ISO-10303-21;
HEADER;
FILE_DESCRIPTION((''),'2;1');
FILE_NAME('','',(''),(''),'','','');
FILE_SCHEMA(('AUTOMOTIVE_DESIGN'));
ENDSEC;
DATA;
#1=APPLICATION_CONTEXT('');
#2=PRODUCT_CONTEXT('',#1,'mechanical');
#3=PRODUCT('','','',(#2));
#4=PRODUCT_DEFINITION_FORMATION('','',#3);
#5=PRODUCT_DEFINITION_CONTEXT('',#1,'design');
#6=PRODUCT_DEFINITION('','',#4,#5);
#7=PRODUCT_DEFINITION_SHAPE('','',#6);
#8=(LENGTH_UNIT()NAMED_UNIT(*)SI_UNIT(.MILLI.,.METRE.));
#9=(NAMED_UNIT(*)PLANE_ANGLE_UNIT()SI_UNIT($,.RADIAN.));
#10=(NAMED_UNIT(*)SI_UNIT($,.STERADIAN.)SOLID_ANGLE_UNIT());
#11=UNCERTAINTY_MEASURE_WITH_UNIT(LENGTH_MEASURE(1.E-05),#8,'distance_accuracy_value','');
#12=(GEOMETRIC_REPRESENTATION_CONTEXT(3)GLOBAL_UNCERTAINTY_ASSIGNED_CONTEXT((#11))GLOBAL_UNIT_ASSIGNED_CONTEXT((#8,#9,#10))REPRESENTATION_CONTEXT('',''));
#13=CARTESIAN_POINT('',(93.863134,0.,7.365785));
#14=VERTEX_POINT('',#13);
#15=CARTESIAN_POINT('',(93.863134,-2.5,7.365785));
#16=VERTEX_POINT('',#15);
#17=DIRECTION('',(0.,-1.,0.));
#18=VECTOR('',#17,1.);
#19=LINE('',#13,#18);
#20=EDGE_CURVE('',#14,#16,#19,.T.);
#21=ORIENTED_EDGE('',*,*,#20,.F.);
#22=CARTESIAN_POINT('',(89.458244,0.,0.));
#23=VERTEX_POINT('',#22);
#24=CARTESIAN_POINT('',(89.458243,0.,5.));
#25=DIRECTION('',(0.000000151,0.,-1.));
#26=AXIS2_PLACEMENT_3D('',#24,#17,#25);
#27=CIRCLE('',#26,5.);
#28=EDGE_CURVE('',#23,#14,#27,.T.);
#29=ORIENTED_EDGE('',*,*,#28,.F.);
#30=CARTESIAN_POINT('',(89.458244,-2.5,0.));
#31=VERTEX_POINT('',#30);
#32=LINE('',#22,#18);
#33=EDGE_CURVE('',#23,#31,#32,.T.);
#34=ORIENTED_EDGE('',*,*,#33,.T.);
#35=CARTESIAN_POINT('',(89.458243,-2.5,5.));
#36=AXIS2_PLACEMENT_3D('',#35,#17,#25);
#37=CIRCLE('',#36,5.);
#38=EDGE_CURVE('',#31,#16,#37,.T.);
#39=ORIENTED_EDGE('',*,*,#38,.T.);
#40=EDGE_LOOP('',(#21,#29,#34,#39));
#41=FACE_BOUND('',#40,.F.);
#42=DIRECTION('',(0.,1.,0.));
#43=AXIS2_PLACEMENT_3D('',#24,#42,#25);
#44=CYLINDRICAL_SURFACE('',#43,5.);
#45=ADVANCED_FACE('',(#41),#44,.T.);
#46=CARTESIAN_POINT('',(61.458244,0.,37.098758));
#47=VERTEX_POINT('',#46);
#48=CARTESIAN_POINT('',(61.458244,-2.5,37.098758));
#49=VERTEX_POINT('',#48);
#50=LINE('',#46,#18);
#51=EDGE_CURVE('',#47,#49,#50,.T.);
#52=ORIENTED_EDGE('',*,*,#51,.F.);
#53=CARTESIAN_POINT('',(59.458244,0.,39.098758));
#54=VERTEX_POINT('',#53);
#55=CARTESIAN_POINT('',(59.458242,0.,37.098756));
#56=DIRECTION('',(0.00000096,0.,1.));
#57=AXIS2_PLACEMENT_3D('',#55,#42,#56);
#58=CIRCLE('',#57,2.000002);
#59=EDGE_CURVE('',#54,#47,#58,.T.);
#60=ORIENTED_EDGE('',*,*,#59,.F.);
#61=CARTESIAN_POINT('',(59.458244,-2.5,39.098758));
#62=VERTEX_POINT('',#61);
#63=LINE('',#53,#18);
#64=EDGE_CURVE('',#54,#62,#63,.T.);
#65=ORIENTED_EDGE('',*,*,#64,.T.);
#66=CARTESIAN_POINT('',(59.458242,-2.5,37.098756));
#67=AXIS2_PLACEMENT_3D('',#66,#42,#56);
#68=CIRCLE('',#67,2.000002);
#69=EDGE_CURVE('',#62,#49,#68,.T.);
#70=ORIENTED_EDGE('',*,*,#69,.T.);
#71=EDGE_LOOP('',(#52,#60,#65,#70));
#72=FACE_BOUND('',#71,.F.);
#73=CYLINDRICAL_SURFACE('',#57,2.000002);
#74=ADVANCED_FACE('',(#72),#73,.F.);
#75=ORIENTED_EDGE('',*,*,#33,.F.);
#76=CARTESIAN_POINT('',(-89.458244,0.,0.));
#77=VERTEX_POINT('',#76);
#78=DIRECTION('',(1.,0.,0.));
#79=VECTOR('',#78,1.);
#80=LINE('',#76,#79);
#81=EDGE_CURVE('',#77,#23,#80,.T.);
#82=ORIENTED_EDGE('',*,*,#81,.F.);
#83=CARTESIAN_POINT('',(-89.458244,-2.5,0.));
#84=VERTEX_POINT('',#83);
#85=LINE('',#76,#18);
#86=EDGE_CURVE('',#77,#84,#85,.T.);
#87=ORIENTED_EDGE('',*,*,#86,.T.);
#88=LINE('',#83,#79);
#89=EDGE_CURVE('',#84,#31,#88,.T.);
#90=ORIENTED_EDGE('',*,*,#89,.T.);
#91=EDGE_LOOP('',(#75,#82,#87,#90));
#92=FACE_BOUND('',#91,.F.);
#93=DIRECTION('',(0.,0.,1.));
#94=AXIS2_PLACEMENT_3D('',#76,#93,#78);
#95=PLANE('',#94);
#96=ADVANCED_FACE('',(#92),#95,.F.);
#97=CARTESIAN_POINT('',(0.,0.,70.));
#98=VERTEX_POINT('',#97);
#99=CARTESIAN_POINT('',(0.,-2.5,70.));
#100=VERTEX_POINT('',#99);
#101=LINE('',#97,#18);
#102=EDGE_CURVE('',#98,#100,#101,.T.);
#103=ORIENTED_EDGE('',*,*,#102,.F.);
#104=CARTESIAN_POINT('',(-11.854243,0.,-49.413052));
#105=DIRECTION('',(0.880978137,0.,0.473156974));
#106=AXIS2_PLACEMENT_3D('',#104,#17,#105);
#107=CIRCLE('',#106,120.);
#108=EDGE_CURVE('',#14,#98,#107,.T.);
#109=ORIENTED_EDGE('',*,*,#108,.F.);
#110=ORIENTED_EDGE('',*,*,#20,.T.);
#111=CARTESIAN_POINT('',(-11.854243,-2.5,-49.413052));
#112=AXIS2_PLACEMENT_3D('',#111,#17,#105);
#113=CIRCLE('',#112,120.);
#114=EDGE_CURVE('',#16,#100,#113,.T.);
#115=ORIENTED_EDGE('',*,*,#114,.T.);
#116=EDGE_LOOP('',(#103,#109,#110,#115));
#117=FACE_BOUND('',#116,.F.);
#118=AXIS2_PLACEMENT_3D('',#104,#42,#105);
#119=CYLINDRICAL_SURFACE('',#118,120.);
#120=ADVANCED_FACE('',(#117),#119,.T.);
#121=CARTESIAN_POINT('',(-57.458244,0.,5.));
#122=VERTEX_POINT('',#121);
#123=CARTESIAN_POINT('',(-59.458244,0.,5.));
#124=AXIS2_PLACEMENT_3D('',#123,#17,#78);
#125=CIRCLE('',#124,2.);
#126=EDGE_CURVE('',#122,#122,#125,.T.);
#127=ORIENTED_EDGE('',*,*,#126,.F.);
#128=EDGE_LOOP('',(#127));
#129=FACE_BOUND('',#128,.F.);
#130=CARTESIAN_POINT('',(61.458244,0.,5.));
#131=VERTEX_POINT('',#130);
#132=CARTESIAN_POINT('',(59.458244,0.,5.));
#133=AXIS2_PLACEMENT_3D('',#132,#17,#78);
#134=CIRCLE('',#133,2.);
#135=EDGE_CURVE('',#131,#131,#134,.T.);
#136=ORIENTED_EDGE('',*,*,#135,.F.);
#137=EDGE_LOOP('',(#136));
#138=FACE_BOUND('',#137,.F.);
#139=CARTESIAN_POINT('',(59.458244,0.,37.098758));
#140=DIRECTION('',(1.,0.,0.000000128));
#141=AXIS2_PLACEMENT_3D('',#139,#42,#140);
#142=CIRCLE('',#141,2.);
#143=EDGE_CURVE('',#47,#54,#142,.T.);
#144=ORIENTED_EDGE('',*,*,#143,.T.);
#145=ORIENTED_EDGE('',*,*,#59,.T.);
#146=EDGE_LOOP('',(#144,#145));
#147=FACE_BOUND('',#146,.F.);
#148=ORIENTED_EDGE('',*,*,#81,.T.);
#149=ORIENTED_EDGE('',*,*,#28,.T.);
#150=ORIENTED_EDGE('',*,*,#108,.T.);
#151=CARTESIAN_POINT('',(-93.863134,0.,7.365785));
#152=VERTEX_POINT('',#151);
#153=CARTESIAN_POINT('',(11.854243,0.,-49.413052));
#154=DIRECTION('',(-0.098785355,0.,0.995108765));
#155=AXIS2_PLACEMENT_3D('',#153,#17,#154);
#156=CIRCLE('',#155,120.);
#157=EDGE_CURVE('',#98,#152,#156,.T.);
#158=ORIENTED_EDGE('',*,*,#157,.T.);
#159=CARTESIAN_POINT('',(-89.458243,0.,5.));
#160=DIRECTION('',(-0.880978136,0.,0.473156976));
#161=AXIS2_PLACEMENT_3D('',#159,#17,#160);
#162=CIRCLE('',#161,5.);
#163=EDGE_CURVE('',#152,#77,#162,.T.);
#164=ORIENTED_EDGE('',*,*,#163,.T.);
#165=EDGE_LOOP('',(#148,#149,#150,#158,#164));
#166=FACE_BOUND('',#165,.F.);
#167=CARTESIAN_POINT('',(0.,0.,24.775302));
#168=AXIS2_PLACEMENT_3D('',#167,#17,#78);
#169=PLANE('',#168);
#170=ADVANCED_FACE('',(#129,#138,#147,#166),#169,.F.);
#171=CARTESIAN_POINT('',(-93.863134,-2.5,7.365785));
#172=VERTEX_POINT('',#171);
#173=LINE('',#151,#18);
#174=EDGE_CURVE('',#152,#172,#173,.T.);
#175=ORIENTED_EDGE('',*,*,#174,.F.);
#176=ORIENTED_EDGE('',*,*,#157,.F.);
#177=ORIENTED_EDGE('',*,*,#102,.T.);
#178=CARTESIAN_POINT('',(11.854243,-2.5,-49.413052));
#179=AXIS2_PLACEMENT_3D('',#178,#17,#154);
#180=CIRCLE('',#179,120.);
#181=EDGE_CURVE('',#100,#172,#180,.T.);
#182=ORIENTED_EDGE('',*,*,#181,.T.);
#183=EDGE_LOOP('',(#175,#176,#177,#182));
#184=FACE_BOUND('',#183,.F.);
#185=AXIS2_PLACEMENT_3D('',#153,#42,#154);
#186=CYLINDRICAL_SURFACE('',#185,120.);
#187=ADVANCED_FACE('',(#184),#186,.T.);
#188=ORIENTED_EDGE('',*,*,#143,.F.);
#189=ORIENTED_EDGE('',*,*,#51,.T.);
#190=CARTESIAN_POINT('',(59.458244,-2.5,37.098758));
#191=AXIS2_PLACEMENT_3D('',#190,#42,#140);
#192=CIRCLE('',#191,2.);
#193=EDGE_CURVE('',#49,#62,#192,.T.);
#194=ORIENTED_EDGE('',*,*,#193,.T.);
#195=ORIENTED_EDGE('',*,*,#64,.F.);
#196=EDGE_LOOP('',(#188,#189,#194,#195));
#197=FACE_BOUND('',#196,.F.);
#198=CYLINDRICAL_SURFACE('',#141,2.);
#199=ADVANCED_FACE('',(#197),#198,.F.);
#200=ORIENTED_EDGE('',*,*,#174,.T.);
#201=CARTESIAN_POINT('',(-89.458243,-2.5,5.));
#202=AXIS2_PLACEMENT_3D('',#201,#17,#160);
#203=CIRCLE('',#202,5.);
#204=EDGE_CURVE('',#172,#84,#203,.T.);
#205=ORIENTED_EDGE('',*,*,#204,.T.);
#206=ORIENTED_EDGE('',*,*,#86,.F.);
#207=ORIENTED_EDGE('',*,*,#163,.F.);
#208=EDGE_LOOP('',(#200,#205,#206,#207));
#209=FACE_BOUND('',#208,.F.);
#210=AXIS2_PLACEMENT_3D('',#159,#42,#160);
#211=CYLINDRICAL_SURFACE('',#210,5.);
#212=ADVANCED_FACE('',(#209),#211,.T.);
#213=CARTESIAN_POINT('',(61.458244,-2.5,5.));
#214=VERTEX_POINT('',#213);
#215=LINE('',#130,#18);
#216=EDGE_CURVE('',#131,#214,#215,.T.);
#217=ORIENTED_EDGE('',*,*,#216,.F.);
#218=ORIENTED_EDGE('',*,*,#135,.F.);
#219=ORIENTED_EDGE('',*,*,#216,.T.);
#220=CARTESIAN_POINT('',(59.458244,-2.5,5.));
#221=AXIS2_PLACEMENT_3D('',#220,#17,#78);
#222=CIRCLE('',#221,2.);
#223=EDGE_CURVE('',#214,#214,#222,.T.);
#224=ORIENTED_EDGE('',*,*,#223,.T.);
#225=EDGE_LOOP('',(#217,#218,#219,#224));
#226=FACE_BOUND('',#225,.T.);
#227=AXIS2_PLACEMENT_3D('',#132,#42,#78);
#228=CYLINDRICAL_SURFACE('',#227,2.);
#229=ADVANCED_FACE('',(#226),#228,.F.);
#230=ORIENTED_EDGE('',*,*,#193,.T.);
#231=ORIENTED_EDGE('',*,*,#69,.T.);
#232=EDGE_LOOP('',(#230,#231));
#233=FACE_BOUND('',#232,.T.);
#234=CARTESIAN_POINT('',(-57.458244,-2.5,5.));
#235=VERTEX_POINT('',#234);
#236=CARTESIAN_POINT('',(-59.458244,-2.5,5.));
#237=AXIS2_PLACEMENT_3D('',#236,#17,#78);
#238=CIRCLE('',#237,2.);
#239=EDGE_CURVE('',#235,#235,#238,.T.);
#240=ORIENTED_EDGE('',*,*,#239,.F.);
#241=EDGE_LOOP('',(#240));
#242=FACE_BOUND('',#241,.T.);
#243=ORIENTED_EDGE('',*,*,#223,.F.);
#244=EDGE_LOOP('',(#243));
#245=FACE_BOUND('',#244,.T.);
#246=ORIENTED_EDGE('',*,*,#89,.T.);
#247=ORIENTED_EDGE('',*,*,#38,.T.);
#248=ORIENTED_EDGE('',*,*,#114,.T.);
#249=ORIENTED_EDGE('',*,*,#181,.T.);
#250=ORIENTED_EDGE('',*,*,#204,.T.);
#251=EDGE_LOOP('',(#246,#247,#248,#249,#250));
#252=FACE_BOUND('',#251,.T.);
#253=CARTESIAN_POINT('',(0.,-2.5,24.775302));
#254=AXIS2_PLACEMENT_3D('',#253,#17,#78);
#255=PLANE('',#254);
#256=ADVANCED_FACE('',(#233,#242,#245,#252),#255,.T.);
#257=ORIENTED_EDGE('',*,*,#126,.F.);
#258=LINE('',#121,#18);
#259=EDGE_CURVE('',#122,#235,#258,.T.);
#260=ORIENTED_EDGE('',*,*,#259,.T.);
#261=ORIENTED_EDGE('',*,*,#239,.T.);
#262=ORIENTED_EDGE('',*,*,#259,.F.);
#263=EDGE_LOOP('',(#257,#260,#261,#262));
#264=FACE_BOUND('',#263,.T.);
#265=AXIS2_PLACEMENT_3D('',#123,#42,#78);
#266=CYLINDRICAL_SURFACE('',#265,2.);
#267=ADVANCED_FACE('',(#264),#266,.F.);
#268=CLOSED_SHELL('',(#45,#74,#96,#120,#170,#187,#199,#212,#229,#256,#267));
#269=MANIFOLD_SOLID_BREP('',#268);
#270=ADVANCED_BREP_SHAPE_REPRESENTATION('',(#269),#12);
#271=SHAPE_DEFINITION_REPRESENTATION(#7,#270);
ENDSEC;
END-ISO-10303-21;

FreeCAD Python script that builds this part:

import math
import FreeCAD as App
import Part
import Sketcher

V = App.Vector
Q = App.Units.Quantity

doc = App.newDocument("Part")
params = doc.addObject("Spreadsheet::Sheet", "Params")
for row, (alias, value) in enumerate([
    ("sketch1_diameter", "4 mm"),
    ("sketch1_radius", "5 mm"),
    ("sketch1_radius2", "120 mm"),
    ("pad1_length", "2.5 mm"),
], start=1):
    params.set(f"A{row}", alias)
    params.set(f"B{row}", "=" + value)
    params.setAlias(f"B{row}", alias)

body = doc.addObject("PartDesign::Body", "Body")

sketch1 = doc.addObject("Sketcher::SketchObject", "Sketch")
body.addObject(sketch1)
sketch1.AttachmentSupport = (doc.XZ_Plane, [""])
sketch1.MapMode = "FlatFace"
sketch1.addGeometry([
    Part.LineSegment(V(-89.5, 0, 0), V(89.5, 0, 0)),
    Part.ArcOfCircle(Part.Circle(V(89.5, 5, 0), V(0, 0, 1), 5), math.radians(-90), math.radians(28)),
    Part.ArcOfCircle(Part.Circle(V(-11.9, -49.4, 0), V(0, 0, 1), 120), math.radians(28), math.radians(84)),
    Part.ArcOfCircle(Part.Circle(V(11.9, -49.4, 0), V(0, 0, 1), 120), math.radians(96), math.radians(152)),
    Part.ArcOfCircle(Part.Circle(V(-89.5, 5, 0), V(0, 0, 1), 5), math.radians(152), math.radians(270)),
    Part.Circle(V(-59.5, 5, 0), V(0, 0, 1), 2),
    Part.Circle(V(59.5, 5, 0), V(0, 0, 1), 2),
    Part.ArcOfCircle(Part.Circle(V(59.5, 37.1, 0), V(0, 0, 1), 2), math.radians(90), math.radians(360)),
    Part.ArcOfCircle(Part.Circle(V(59.5, 37.1, 0), V(0, 0, 1), 2), math.radians(0), math.radians(90)),
], False)
sketch1.addConstraint([
    Sketcher.Constraint("Tangent", 0, 2, 1, 1),
    Sketcher.Constraint("Tangent", 1, 2, 2, 1),
    Sketcher.Constraint("Coincident", 2, 2, 3, 1),
    Sketcher.Constraint("Tangent", 3, 2, 4, 1),
    Sketcher.Constraint("Tangent", 4, 2, 0, 1),
    Sketcher.Constraint("Tangent", 7, 1, 8, 2),
    Sketcher.Constraint("Coincident", 8, 1, 7, 2),
    Sketcher.Constraint("Horizontal", 0),
    Sketcher.Constraint("Equal", 2, 3),
    Sketcher.Constraint("Equal", 1, 4),
    Sketcher.Constraint("Equal", 5, 6),
    Sketcher.Constraint("Equal", 6, 7),
    Sketcher.Constraint("Symmetric", 0, 2, 4, 2, -1, 1),
    Sketcher.Constraint("Symmetric", 5, 3, 6, 3, -2),
    Sketcher.Constraint("PointOnObject", 2, 2, -2),
    Sketcher.Constraint("Horizontal", 4, 3, 5, 3),
    Sketcher.Constraint("Horizontal", 7, 3, 8, 1),
    Sketcher.Constraint("Vertical", 6, 3, 7, 3),
    Sketcher.Constraint("Vertical", 8, 3, 7, 1),
    Sketcher.Constraint("Diameter", 5, Q("4 mm")),
    Sketcher.Constraint("Radius", 1, Q("5 mm")),
    Sketcher.Constraint("Radius", 2, Q("120 mm")),
    Sketcher.Constraint("DistanceY", -1, 1, 2, 2, Q("70 mm")),
    Sketcher.Constraint("DistanceX", 4, 3, 5, 3, Q("29.999999 mm")),
    Sketcher.Constraint("DistanceX", 3, 3, 1, 3, Q("77.604001 mm")),
    Sketcher.Constraint("DistanceY", 3, 3, 7, 3, Q("86.51181 mm")),
])
sketch1.setExpression("Constraints[19]", "Params.sketch1_diameter")
sketch1.setExpression("Constraints[20]", "Params.sketch1_radius")
sketch1.setExpression("Constraints[21]", "Params.sketch1_radius2")
pad1 = doc.addObject("PartDesign::Pad", "Pad")
body.addObject(pad1)
pad1.Profile = sketch1
pad1.setExpression("Length", "Params.pad1_length")

doc.recompute()
